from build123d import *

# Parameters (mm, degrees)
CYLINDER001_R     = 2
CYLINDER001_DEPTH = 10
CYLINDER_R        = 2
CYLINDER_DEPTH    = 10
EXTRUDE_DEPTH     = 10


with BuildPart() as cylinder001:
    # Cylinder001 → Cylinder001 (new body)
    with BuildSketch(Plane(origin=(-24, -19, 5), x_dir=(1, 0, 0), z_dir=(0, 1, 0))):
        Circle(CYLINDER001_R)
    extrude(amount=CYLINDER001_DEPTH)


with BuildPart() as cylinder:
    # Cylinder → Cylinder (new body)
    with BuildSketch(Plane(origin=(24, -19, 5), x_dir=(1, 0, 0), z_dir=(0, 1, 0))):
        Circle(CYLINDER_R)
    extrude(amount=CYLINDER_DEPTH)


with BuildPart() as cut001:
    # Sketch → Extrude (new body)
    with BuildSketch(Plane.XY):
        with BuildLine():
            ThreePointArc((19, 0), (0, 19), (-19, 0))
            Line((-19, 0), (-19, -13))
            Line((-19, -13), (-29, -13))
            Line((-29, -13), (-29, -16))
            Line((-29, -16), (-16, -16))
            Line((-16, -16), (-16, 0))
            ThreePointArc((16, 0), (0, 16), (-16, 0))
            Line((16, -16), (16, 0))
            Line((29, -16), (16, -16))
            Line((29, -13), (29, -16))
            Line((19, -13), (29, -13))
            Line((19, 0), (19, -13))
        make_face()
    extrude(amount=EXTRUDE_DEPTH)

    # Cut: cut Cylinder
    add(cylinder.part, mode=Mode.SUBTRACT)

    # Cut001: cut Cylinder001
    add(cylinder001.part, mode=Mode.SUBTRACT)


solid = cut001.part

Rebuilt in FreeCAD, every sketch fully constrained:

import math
import FreeCAD as App
import Part
import Sketcher

doc = App.newDocument("Part")
body = doc.addObject("PartDesign::Body", "Body")

# Sketch on XZ plane
sketch1 = body.newObject("Sketcher::SketchObject", "Sketch")
sketch1.AttachmentSupport = (doc.getObject("XZ_Plane"), [""])
sketch1.MapMode = "FlatFace"
sketch1.AttachmentOffset = App.Placement(App.Vector(0, 0, 19), App.Rotation())
sketch1.addGeometry(Part.Circle(App.Vector(-24, 5, 0), App.Vector(0, 0, 1), 2), False)
sketch1.addConstraint([
    Sketcher.Constraint("Diameter", 0, 4.0),
    Sketcher.Constraint("DistanceX", 0, 3, -1, 1, 24.0),
    Sketcher.Constraint("DistanceY", -1, 1, 0, 3, 5.0),
])
pad1 = body.newObject("PartDesign::Pad", "Pad")
pad1.Profile = sketch1
pad1.Length = 10
pad1.Reversed = True
body2 = doc.addObject("PartDesign::Body", "Body001")

# Sketch on XZ plane
sketch2 = body2.newObject("Sketcher::SketchObject", "Sketch001")
sketch2.AttachmentSupport = (doc.getObject("XZ_Plane001"), [""])
sketch2.MapMode = "FlatFace"
sketch2.AttachmentOffset = App.Placement(App.Vector(0, 0, 19), App.Rotation())
sketch2.addGeometry(Part.Circle(App.Vector(24, 5, 0), App.Vector(0, 0, 1), 2), False)
sketch2.addConstraint([
    Sketcher.Constraint("Diameter", 0, 4.0),
    Sketcher.Constraint("DistanceX", -1, 1, 0, 3, 24.0),
    Sketcher.Constraint("DistanceY", -1, 1, 0, 3, 5.0),
])
pad2 = body2.newObject("PartDesign::Pad", "Pad001")
pad2.Profile = sketch2
pad2.Length = 10
pad2.Reversed = True
body3 = doc.addObject("PartDesign::Body", "Body002")

# Sketch on XY plane
sketch3 = body3.newObject("Sketcher::SketchObject", "Sketch002")
sketch3.AttachmentSupport = (doc.getObject("XY_Plane002"), [""])
sketch3.MapMode = "FlatFace"
sketch3.addGeometry([
    Part.ArcOfCircle(Part.Circle(App.Vector(0, 0, 0), App.Vector(0, 0, 1), 19), math.radians(0), math.radians(180)),  # 0
    Part.LineSegment(App.Vector(-19, 0, 0), App.Vector(-19, -13, 0)),  # 1
    Part.LineSegment(App.Vector(-19, -13, 0), App.Vector(-29, -13, 0)),  # 2
    Part.LineSegment(App.Vector(-29, -13, 0), App.Vector(-29, -16, 0)),  # 3
    Part.LineSegment(App.Vector(-29, -16, 0), App.Vector(-16, -16, 0)),  # 4
    Part.LineSegment(App.Vector(-16, -16, 0), App.Vector(-16, 0, 0)),  # 5
    Part.ArcOfCircle(Part.Circle(App.Vector(0, 0, 0), App.Vector(0, 0, 1), 16), math.radians(0), math.radians(180)),  # 6
    Part.LineSegment(App.Vector(16, 0, 0), App.Vector(16, -16, 0)),  # 7
    Part.LineSegment(App.Vector(16, -16, 0), App.Vector(29, -16, 0)),  # 8
    Part.LineSegment(App.Vector(29, -16, 0), App.Vector(29, -13, 0)),  # 9
    Part.LineSegment(App.Vector(29, -13, 0), App.Vector(19, -13, 0)),  # 10
    Part.LineSegment(App.Vector(19, -13, 0), App.Vector(19, 0, 0)),  # 11
], False)
sketch3.addConstraint([
    Sketcher.Constraint("Tangent", 0, 2, 1, 1),
    Sketcher.Constraint("Coincident", 1, 2, 2, 1),
    Sketcher.Constraint("Coincident", 2, 2, 3, 1),
    Sketcher.Constraint("Coincident", 3, 2, 4, 1),
    Sketcher.Constraint("Coincident", 4, 2, 5, 1),
    Sketcher.Constraint("Tangent", 5, 2, 6, 2),
    Sketcher.Constraint("Tangent", 6, 1, 7, 1),
    Sketcher.Constraint("Coincident", 7, 2, 8, 1),
    Sketcher.Constraint("Coincident", 8, 2, 9, 1),
    Sketcher.Constraint("Coincident", 9, 2, 10, 1),
    Sketcher.Constraint("Coincident", 10, 2, 11, 1),
    Sketcher.Constraint("Tangent", 11, 2, 0, 1),
    Sketcher.Constraint("Vertical", 1),
    Sketcher.Constraint("Horizontal", 2),
    Sketcher.Constraint("Vertical", 3),
    Sketcher.Constraint("Horizontal", 4),
    Sketcher.Constraint("Vertical", 5),
    Sketcher.Constraint("Vertical", 7),
    Sketcher.Constraint("Horizontal", 8),
    Sketcher.Constraint("Vertical", 9),
    Sketcher.Constraint("Horizontal", 10),
    Sketcher.Constraint("Vertical", 11),
    Sketcher.Constraint("Coincident", 0, 3, -1, 1),
    Sketcher.Constraint("Coincident", 6, 3, -1, 1),
    Sketcher.Constraint("Symmetric", 3, 2, 8, 2, -2),
    Sketcher.Constraint("Horizontal", 2, 2, 9, 2),
    Sketcher.Constraint("Equal", 8, 1),
    Sketcher.Constraint("Radius", 0, 19.0),
    Sketcher.Constraint("Radius", 6, 16.0),
    Sketcher.Constraint("DistanceX", 2, 2, 2, 1, 10.0),
    Sketcher.Constraint("DistanceY", 3, 2, 3, 1, 3.0),
])
pad3 = body3.newObject("PartDesign::Pad", "Pad002")
pad3.Profile = sketch3
pad3.Length = 10
doc.recompute()

boolean = body3.newObject("PartDesign::Boolean", "Boolean")
boolean.Type = "Cut"
boolean.addObjects([body2])
doc.recompute()

boolean2 = body3.newObject("PartDesign::Boolean", "Boolean001")
boolean2.Type = "Cut"
boolean2.addObjects([body])

doc.recompute()
